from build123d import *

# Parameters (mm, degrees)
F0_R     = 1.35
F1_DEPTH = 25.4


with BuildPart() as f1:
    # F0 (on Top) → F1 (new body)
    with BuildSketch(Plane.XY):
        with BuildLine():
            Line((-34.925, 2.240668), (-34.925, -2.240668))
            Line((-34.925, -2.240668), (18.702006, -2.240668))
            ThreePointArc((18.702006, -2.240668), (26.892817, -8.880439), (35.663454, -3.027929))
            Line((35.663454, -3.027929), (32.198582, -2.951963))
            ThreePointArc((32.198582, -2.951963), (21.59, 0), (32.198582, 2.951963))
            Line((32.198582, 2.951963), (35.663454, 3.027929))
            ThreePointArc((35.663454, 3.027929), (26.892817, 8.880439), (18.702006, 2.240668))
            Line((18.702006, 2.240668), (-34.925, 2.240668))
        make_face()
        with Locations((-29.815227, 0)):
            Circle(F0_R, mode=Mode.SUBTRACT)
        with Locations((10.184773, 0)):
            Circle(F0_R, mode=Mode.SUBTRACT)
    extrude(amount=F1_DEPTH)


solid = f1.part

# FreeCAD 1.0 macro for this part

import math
import FreeCAD as App
import Part
import Sketcher
Q = App.Units.Quantity

doc = App.newDocument("Part")
body = doc.addObject("PartDesign::Body", "Body")

# Sketch on XY plane
sketch1 = body.newObject("Sketcher::SketchObject", "Sketch")
sketch1.AttachmentSupport = (doc.getObject("XY_Plane"), [""])
sketch1.MapMode = "FlatFace"
sketch1.addGeometry([
    Part.LineSegment(App.Vector(-34.9, 2.2, 0), App.Vector(-34.9, -2.2, 0)),  # 0
    Part.LineSegment(App.Vector(-34.9, -2.2, 0), App.Vector(18.7, -2.2, 0)),  # 1
    Part.ArcOfCircle(Part.Circle(App.Vector(27.3, 0, 0), App.Vector(0, 0, 1), 8.9), math.radians(-165), math.radians(-20)),  # 2
    Part.LineSegment(App.Vector(35.7, -3, 0), App.Vector(32.2, -3, 0)),  # 3
    Part.ArcOfCircle(Part.Circle(App.Vector(27.3, 0, 0), App.Vector(0, 0, 1), 5.7), math.radians(31), math.radians(329)),  # 4
    Part.LineSegment(App.Vector(32.2, 3, 0), App.Vector(35.7, 3, 0)),  # 5
    Part.ArcOfCircle(Part.Circle(App.Vector(27.3, 0, 0), App.Vector(0, 0, 1), 8.9), math.radians(20), math.radians(165)),  # 6
    Part.LineSegment(App.Vector(18.7, 2.2, 0), App.Vector(-34.9, 2.2, 0)),  # 7
    Part.Circle(App.Vector(-29.8, 0, 0), App.Vector(0, 0, 1), 1.4),  # 8
    Part.Circle(App.Vector(10.2, 0, 0), App.Vector(0, 0, 1), 1.4),  # 9
], False)
sketch1.addConstraint([
    Sketcher.Constraint("Coincident", 0, 2, 1, 1),
    Sketcher.Constraint("Coincident", 1, 2, 2, 1),
    Sketcher.Constraint("Coincident", 2, 2, 3, 1),
    Sketcher.Constraint("Coincident", 3, 2, 4, 2),
    Sketcher.Constraint("Coincident", 4, 1, 5, 1),
    Sketcher.Constraint("Coincident", 5, 2, 6, 1),
    Sketcher.Constraint("Coincident", 6, 2, 7, 1),
    Sketcher.Constraint("Coincident", 7, 2, 0, 1),
    Sketcher.Constraint("Vertical", 0),
    Sketcher.Constraint("Horizontal", 1),
    Sketcher.Constraint("Horizontal", 7),
    Sketcher.Constraint("Coincident", 4, 3, 2, 3),
    Sketcher.Constraint("Coincident", 6, 3, 2, 3),
    Sketcher.Constraint("Equal", 2, 6),
    Sketcher.Constraint("Equal", 8, 9),
    Sketcher.Constraint("Symmetric", 3, 2, 4, 1, -1),
    Sketcher.Constraint("PointOnObject", 8, 3, -1),
    Sketcher.Constraint("PointOnObject", 9, 3, -1),
    Sketcher.Constraint("Vertical", 2, 2, 5, 2),
    Sketcher.Constraint("Vertical", 1, 2, 6, 2),
    Sketcher.Constraint("Radius", 2, Q("0.35 in")),
    Sketcher.Constraint("Radius", 4, Q("0.225 in")),
    Sketcher.Constraint("Diameter", 8, 2.7),
    Sketcher.Constraint("DistanceX", 0, 2, 4, 3, Q("2.45 in")),
    Sketcher.Constraint("DistanceX", -1, 1, 2, 3, Q("1.075 in")),
    Sketcher.Constraint("DistanceX", 8, 3, 9, 3, 40.0),
    Sketcher.Constraint("DistanceX", 1, 1, 1, 2, 53.627006),
    Sketcher.Constraint("DistanceY", 2, 2, -1, 1, 3.027929),
    Sketcher.Constraint("DistanceX", 9, 3, 2, 2, 25.478681),
    Sketcher.Constraint("DistanceX", 6, 3, 3, 2, 4.893582),
])
pad1 = body.newObject("PartDesign::Pad", "Pad")
pad1.Profile = sketch1
pad1.Length = Q("1 in")

doc.recompute()
